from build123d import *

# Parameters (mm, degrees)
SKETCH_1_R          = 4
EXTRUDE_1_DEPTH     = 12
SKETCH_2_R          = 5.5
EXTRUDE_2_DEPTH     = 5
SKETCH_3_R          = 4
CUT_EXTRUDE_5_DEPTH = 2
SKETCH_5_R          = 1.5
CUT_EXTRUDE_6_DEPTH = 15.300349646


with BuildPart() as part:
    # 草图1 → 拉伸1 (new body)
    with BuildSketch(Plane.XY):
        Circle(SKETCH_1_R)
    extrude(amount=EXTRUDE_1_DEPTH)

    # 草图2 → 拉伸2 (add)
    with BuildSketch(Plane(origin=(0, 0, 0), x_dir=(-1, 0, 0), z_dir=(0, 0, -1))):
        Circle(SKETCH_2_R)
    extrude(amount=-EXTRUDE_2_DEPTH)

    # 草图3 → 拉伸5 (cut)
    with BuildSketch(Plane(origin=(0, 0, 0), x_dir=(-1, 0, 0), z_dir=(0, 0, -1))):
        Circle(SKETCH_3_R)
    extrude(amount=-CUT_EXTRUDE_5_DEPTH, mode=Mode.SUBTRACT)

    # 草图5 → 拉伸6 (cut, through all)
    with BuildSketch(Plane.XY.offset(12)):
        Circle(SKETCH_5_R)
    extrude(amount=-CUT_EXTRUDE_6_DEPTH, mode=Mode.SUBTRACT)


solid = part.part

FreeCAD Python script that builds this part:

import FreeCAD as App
import Part
import Sketcher

V = App.Vector

doc = App.newDocument("Part")
body = doc.addObject("PartDesign::Body", "Body")

# Sketch on XY plane
sketch1 = body.newObject("Sketcher::SketchObject", "Sketch")
sketch1.AttachmentSupport = (doc.getObject("XY_Plane"), [""])
sketch1.MapMode = "FlatFace"
sketch1.addGeometry(Part.Circle(V(0, 0, 0), V(0, 0, 1), 4), False)
sketch1.addConstraint([
    Sketcher.Constraint("Coincident", 0, 3, -1, 1),
    Sketcher.Constraint("Diameter", 0, 8.0),
])
pad1 = body.newObject("PartDesign::Pad", "Pad")
pad1.Profile = sketch1
pad1.Length = 12

# Sketch on XY plane
sketch2 = body.newObject("Sketcher::SketchObject", "Sketch001")
sketch2.AttachmentSupport = (doc.getObject("XY_Plane"), [""])
sketch2.MapMode = "FlatFace"
sketch2.addGeometry(Part.Circle(V(0, 0, 0), V(0, 0, 1), 6), False)
sketch2.addConstraint([
    Sketcher.Constraint("Coincident", 0, 3, -1, 1),
    Sketcher.Constraint("Diameter", 0, 11.0),
])
pad2 = body.newObject("PartDesign::Pad", "Pad001")
pad2.Profile = sketch2
pad2.Length = 5

# Sketch on XY plane
sketch3 = body.newObject("Sketcher::SketchObject", "Sketch002")
sketch3.AttachmentSupport = (doc.getObject("XY_Plane"), [""])
sketch3.MapMode = "FlatFace"
sketch3.addGeometry(Part.Circle(V(0, 0, 0), V(0, 0, 1), 4), False)
sketch3.addConstraint([
    Sketcher.Constraint("Coincident", 0, 3, -1, 1),
    Sketcher.Constraint("Diameter", 0, 8.0),
])
pocket1 = body.newObject("PartDesign::Pocket", "Pocket")
pocket1.Profile = sketch3
pocket1.Length = 2
pocket1.Reversed = True

# Sketch on XY plane
sketch4 = body.newObject("Sketcher::SketchObject", "Sketch003")
sketch4.AttachmentSupport = (doc.getObject("XY_Plane"), [""])
sketch4.MapMode = "FlatFace"
sketch4.AttachmentOffset = App.Placement(V(0, 0, 12), App.Rotation())
sketch4.addGeometry(Part.Circle(V(0, 0, 0), V(0, 0, 1), 1.5), False)
sketch4.addConstraint([
    Sketcher.Constraint("Coincident", 0, 3, -1, 1),
    Sketcher.Constraint("Diameter", 0, 3.0),
])
pocket2 = body.newObject("PartDesign::Pocket", "Pocket001")
pocket2.Profile = sketch4
pocket2.Type = "ThroughAll"

doc.recompute()
